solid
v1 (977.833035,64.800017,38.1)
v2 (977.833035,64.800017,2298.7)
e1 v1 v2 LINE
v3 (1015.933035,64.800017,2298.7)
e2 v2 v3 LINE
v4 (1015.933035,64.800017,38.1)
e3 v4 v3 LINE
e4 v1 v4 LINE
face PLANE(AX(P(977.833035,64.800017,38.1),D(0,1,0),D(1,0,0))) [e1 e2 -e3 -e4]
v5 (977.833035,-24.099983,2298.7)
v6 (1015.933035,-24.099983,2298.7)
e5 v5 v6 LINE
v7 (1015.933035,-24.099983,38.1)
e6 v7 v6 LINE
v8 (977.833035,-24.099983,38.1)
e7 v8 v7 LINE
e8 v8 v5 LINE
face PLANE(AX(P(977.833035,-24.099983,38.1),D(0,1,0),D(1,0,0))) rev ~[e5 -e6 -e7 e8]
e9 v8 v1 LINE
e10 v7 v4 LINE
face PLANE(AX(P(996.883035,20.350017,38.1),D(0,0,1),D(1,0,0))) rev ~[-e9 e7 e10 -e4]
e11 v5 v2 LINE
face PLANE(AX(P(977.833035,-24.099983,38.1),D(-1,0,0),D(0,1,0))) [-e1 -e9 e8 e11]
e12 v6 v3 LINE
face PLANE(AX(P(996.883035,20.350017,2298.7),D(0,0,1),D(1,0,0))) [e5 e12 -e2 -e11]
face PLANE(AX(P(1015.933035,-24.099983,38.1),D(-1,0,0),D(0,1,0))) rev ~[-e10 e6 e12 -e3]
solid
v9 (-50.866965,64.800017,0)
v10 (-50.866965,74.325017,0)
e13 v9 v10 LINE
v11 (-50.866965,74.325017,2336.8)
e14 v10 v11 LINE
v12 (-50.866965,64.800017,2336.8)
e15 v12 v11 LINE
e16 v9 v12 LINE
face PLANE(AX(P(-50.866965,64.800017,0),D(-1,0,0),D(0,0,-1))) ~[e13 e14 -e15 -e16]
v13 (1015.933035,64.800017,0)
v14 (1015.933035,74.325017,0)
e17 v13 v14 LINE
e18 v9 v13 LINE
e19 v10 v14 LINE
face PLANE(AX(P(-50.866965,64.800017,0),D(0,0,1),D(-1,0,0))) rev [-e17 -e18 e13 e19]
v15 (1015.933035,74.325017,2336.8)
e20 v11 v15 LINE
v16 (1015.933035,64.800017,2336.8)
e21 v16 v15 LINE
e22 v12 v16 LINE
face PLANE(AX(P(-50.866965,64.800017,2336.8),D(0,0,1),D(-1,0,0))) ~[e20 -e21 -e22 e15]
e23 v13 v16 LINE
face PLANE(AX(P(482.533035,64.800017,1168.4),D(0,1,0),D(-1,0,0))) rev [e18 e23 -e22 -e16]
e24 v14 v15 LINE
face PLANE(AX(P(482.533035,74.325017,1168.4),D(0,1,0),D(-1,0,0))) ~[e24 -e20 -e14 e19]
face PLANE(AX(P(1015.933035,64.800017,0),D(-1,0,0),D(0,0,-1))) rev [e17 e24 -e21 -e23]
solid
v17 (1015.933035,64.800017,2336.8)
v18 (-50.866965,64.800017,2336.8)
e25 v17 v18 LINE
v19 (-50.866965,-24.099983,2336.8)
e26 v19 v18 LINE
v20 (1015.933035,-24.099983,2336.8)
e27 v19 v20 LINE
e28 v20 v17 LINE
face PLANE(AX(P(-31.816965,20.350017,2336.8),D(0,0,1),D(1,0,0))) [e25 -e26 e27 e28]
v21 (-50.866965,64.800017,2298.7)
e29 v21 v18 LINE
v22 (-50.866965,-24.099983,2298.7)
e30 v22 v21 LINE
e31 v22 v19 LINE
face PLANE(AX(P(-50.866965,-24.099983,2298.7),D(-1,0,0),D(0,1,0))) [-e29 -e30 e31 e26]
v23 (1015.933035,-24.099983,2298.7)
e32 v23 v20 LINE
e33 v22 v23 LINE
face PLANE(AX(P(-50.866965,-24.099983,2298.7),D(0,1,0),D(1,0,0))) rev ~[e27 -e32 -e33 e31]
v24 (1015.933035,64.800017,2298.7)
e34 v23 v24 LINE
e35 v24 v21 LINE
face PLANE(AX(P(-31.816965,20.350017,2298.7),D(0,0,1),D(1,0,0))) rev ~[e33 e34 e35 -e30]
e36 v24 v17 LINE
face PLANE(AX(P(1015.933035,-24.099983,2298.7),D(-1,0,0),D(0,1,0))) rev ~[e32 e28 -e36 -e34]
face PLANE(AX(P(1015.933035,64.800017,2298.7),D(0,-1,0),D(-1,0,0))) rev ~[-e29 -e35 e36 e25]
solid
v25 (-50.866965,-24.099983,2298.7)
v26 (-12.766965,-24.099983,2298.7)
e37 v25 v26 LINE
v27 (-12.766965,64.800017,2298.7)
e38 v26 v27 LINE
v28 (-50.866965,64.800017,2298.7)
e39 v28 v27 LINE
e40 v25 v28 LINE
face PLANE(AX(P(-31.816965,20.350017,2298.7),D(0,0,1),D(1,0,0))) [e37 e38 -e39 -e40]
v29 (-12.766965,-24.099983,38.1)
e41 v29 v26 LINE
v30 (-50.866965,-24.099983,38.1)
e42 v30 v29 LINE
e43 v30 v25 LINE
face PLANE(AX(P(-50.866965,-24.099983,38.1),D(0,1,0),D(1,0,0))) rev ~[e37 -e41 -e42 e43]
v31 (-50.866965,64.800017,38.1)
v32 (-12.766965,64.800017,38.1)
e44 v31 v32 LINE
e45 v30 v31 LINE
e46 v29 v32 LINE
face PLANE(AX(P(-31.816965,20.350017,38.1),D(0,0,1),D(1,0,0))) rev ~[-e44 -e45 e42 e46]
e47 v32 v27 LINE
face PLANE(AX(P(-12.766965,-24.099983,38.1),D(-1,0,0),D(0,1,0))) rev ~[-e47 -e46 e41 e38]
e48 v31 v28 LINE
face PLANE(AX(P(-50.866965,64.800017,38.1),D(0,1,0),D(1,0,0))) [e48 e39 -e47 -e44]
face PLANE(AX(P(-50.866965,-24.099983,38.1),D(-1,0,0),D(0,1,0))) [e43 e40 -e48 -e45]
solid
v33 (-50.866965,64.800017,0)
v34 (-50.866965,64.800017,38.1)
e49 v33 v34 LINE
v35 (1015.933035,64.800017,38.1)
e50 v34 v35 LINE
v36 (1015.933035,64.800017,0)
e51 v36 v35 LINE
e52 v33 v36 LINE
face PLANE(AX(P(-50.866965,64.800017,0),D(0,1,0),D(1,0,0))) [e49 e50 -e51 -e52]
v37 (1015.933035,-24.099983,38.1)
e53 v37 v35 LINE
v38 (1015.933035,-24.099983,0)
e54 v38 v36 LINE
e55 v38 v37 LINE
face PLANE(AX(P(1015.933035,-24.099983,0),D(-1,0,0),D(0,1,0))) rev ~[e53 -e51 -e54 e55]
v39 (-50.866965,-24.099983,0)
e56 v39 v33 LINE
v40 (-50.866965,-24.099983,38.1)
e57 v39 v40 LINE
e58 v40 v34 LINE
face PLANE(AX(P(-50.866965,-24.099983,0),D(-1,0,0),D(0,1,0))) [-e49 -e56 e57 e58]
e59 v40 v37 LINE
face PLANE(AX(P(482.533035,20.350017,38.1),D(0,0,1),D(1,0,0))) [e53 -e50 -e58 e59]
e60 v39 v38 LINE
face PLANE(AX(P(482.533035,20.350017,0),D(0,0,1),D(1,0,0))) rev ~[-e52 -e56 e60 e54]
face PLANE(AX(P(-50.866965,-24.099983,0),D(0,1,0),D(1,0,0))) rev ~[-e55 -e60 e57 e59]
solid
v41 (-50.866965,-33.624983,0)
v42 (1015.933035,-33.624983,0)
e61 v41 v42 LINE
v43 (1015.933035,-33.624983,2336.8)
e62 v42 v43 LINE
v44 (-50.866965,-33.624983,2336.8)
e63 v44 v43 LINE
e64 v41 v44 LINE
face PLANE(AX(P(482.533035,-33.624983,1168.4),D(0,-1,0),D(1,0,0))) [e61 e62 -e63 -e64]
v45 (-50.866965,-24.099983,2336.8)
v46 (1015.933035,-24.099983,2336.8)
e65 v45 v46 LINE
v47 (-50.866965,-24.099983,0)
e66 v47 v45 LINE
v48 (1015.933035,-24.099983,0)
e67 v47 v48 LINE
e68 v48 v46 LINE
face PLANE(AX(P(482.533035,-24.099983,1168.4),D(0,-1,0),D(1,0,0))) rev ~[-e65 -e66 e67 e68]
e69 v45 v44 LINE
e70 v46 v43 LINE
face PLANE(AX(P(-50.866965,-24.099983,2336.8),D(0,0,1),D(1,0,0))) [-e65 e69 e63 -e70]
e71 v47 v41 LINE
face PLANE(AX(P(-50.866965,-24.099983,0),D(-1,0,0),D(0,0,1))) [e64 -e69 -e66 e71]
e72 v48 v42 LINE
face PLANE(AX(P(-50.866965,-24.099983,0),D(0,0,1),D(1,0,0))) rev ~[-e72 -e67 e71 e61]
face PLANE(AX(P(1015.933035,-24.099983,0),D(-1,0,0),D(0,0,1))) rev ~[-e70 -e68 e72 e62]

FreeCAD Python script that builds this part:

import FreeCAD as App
import Part
import Sketcher

V = App.Vector
Q = App.Units.Quantity


def add_polygon(sketch, points):
    """Adds a closed chain of lines whose ends are joined by coincident constraints."""
    first, n = sketch.GeometryCount, len(points)
    for a, b in zip(points, points[1:] + points[:1]):
        sketch.addGeometry(Part.LineSegment(App.Vector(*a, 0), App.Vector(*b, 0)), False)
    for i in range(n):
        sketch.addConstraint(Sketcher.Constraint("Coincident", first + i, 2, first + (i + 1) % n, 1))

doc = App.newDocument("Part")
body = doc.addObject("PartDesign::Body", "Body")

# Sketch on XY plane
sketch1 = body.newObject("Sketcher::SketchObject", "Sketch")
sketch1.AttachmentSupport = (doc.getObject("XY_Plane"), [""])
sketch1.MapMode = "FlatFace"
add_polygon(sketch1, [(-50.866965, 64.800017), (-50.866965, -24.099983), (1015.933035, -24.099983), (1015.933035, 64.800017)])  # lines 0-3
sketch1.addConstraint([
    Sketcher.Constraint("Vertical", 0),
    Sketcher.Constraint("Horizontal", 1),
    Sketcher.Constraint("Vertical", 2),
    Sketcher.Constraint("Horizontal", 3),
    Sketcher.Constraint("DistanceX", 1, 1, 1, 2, Q("42 in")),
    Sketcher.Constraint("DistanceY", 0, 2, 0, 1, Q("3.5 in")),
    Sketcher.Constraint("DistanceX", 0, 2, -1, 1, 50.866965),
    Sketcher.Constraint("DistanceY", 0, 2, -1, 1, 24.099983),
])
pad1 = body.newObject("PartDesign::Pad", "Pad")
pad1.Profile = sketch1
pad1.Length = Q("1.5 in")
body2 = doc.addObject("PartDesign::Body", "Body001")

# Sketch on XY plane
sketch2 = body2.newObject("Sketcher::SketchObject", "Sketch001")
sketch2.AttachmentSupport = (doc.getObject("XY_Plane001"), [""])
sketch2.MapMode = "FlatFace"
sketch2.AttachmentOffset = App.Placement(V(0, 0, 1.5 * 25.4), App.Rotation())
add_polygon(sketch2, [(-50.866965, 64.800017), (-50.866965, -24.099983), (-12.766965, -24.099983), (-12.766965, 64.800017)])  # lines 0-3
sketch2.addConstraint([
    Sketcher.Constraint("Vertical", 0),
    Sketcher.Constraint("Horizontal", 1),
    Sketcher.Constraint("Vertical", 2),
    Sketcher.Constraint("Horizontal", 3),
    Sketcher.Constraint("DistanceX", 1, 1, 1, 2, Q("1.5 in")),
    Sketcher.Constraint("DistanceY", 0, 2, 0, 1, Q("3.5 in")),
    Sketcher.Constraint("DistanceX", 0, 2, -1, 1, 50.866965),
    Sketcher.Constraint("DistanceY", 0, 2, -1, 1, 24.099983),
])
pad2 = body2.newObject("PartDesign::Pad", "Pad001")
pad2.Profile = sketch2
pad2.Length = Q("89 in")
body3 = doc.addObject("PartDesign::Body", "Body002")

# Sketch on XY plane
sketch3 = body3.newObject("Sketcher::SketchObject", "Sketch002")
sketch3.AttachmentSupport = (doc.getObject("XY_Plane002"), [""])
sketch3.MapMode = "FlatFace"
sketch3.AttachmentOffset = App.Placement(V(0, 0, 1.5 * 25.4), App.Rotation())
add_polygon(sketch3, [(977.833035, 64.800017), (977.833035, -24.099983), (1015.933035, -24.099983), (1015.933035, 64.800017)])  # lines 0-3
sketch3.addConstraint([
    Sketcher.Constraint("Vertical", 0),
    Sketcher.Constraint("Horizontal", 1),
    Sketcher.Constraint("Vertical", 2),
    Sketcher.Constraint("Horizontal", 3),
    Sketcher.Constraint("DistanceX", 1, 1, 1, 2, Q("1.5 in")),
    Sketcher.Constraint("DistanceY", 0, 2, 0, 1, Q("3.5 in")),
    Sketcher.Constraint("DistanceX", -1, 1, 0, 2, 977.833035),
    Sketcher.Constraint("DistanceY", 0, 2, -1, 1, 24.099983),
])
pad3 = body3.newObject("PartDesign::Pad", "Pad002")
pad3.Profile = sketch3
pad3.Length = Q("89 in")
body4 = doc.addObject("PartDesign::Body", "Body003")

# Sketch on XY plane
sketch4 = body4.newObject("Sketcher::SketchObject", "Sketch003")
sketch4.AttachmentSupport = (doc.getObject("XY_Plane003"), [""])
sketch4.MapMode = "FlatFace"
sketch4.AttachmentOffset = App.Placement(V(0, 0, 90.5 * 25.4), App.Rotation())
add_polygon(sketch4, [(-50.866965, 64.800017), (-50.866965, -24.099983), (1015.933035, -24.099983), (1015.933035, 64.800017)])  # lines 0-3
sketch4.addConstraint([
    Sketcher.Constraint("Vertical", 0),
    Sketcher.Constraint("Horizontal", 1),
    Sketcher.Constraint("Vertical", 2),
    Sketcher.Constraint("Horizontal", 3),
    Sketcher.Constraint("DistanceX", 1, 1, 1, 2, Q("42 in")),
    Sketcher.Constraint("DistanceY", 0, 2, 0, 1, Q("3.5 in")),
    Sketcher.Constraint("DistanceX", 0, 2, -1, 1, 50.866965),
    Sketcher.Constraint("DistanceY", 0, 2, -1, 1, 24.099983),
])
pad4 = body4.newObject("PartDesign::Pad", "Pad003")
pad4.Profile = sketch4
pad4.Length = Q("1.5 in")
body5 = doc.addObject("PartDesign::Body", "Body004")

# Sketch on XZ plane
sketch5 = body5.newObject("Sketcher::SketchObject", "Sketch004")
sketch5.AttachmentSupport = (doc.getObject("XZ_Plane004"), [""])
sketch5.MapMode = "FlatFace"
sketch5.AttachmentOffset = App.Placement(V(0, 0, 24.099983), App.Rotation())
add_polygon(sketch5, [(-50.866965, 2336.8), (-50.866965, 0), (1015.933035, 0), (1015.933035, 2336.8)])  # lines 0-3
sketch5.addConstraint([
    Sketcher.Constraint("Vertical", 0),
    Sketcher.Constraint("Horizontal", 1),
    Sketcher.Constraint("Vertical", 2),
    Sketcher.Constraint("Horizontal", 3),
    Sketcher.Constraint("PointOnObject", 0, 2, -1),
    Sketcher.Constraint("DistanceX", 1, 1, 1, 2, Q("42 in")),
    Sketcher.Constraint("DistanceY", 0, 2, 0, 1, Q("92 in")),
    Sketcher.Constraint("DistanceX", 0, 2, -1, 1, 50.866965),
])
pad5 = body5.newObject("PartDesign::Pad", "Pad004")
pad5.Profile = sketch5
pad5.Length = Q("0.375 in")
body6 = doc.addObject("PartDesign::Body", "Body005")
doc.recompute()

mirroring = doc.addObject("Part::Mirroring", "Mirroring")
mirroring.Source = body5
mirroring.Base = V(-50.866965, 20.350017, 2336.8)
mirroring.Normal = V(0, 1, 0)
body6.BaseFeature = mirroring
doc.recompute()
mirroring.Visibility = False

doc.recompute()
